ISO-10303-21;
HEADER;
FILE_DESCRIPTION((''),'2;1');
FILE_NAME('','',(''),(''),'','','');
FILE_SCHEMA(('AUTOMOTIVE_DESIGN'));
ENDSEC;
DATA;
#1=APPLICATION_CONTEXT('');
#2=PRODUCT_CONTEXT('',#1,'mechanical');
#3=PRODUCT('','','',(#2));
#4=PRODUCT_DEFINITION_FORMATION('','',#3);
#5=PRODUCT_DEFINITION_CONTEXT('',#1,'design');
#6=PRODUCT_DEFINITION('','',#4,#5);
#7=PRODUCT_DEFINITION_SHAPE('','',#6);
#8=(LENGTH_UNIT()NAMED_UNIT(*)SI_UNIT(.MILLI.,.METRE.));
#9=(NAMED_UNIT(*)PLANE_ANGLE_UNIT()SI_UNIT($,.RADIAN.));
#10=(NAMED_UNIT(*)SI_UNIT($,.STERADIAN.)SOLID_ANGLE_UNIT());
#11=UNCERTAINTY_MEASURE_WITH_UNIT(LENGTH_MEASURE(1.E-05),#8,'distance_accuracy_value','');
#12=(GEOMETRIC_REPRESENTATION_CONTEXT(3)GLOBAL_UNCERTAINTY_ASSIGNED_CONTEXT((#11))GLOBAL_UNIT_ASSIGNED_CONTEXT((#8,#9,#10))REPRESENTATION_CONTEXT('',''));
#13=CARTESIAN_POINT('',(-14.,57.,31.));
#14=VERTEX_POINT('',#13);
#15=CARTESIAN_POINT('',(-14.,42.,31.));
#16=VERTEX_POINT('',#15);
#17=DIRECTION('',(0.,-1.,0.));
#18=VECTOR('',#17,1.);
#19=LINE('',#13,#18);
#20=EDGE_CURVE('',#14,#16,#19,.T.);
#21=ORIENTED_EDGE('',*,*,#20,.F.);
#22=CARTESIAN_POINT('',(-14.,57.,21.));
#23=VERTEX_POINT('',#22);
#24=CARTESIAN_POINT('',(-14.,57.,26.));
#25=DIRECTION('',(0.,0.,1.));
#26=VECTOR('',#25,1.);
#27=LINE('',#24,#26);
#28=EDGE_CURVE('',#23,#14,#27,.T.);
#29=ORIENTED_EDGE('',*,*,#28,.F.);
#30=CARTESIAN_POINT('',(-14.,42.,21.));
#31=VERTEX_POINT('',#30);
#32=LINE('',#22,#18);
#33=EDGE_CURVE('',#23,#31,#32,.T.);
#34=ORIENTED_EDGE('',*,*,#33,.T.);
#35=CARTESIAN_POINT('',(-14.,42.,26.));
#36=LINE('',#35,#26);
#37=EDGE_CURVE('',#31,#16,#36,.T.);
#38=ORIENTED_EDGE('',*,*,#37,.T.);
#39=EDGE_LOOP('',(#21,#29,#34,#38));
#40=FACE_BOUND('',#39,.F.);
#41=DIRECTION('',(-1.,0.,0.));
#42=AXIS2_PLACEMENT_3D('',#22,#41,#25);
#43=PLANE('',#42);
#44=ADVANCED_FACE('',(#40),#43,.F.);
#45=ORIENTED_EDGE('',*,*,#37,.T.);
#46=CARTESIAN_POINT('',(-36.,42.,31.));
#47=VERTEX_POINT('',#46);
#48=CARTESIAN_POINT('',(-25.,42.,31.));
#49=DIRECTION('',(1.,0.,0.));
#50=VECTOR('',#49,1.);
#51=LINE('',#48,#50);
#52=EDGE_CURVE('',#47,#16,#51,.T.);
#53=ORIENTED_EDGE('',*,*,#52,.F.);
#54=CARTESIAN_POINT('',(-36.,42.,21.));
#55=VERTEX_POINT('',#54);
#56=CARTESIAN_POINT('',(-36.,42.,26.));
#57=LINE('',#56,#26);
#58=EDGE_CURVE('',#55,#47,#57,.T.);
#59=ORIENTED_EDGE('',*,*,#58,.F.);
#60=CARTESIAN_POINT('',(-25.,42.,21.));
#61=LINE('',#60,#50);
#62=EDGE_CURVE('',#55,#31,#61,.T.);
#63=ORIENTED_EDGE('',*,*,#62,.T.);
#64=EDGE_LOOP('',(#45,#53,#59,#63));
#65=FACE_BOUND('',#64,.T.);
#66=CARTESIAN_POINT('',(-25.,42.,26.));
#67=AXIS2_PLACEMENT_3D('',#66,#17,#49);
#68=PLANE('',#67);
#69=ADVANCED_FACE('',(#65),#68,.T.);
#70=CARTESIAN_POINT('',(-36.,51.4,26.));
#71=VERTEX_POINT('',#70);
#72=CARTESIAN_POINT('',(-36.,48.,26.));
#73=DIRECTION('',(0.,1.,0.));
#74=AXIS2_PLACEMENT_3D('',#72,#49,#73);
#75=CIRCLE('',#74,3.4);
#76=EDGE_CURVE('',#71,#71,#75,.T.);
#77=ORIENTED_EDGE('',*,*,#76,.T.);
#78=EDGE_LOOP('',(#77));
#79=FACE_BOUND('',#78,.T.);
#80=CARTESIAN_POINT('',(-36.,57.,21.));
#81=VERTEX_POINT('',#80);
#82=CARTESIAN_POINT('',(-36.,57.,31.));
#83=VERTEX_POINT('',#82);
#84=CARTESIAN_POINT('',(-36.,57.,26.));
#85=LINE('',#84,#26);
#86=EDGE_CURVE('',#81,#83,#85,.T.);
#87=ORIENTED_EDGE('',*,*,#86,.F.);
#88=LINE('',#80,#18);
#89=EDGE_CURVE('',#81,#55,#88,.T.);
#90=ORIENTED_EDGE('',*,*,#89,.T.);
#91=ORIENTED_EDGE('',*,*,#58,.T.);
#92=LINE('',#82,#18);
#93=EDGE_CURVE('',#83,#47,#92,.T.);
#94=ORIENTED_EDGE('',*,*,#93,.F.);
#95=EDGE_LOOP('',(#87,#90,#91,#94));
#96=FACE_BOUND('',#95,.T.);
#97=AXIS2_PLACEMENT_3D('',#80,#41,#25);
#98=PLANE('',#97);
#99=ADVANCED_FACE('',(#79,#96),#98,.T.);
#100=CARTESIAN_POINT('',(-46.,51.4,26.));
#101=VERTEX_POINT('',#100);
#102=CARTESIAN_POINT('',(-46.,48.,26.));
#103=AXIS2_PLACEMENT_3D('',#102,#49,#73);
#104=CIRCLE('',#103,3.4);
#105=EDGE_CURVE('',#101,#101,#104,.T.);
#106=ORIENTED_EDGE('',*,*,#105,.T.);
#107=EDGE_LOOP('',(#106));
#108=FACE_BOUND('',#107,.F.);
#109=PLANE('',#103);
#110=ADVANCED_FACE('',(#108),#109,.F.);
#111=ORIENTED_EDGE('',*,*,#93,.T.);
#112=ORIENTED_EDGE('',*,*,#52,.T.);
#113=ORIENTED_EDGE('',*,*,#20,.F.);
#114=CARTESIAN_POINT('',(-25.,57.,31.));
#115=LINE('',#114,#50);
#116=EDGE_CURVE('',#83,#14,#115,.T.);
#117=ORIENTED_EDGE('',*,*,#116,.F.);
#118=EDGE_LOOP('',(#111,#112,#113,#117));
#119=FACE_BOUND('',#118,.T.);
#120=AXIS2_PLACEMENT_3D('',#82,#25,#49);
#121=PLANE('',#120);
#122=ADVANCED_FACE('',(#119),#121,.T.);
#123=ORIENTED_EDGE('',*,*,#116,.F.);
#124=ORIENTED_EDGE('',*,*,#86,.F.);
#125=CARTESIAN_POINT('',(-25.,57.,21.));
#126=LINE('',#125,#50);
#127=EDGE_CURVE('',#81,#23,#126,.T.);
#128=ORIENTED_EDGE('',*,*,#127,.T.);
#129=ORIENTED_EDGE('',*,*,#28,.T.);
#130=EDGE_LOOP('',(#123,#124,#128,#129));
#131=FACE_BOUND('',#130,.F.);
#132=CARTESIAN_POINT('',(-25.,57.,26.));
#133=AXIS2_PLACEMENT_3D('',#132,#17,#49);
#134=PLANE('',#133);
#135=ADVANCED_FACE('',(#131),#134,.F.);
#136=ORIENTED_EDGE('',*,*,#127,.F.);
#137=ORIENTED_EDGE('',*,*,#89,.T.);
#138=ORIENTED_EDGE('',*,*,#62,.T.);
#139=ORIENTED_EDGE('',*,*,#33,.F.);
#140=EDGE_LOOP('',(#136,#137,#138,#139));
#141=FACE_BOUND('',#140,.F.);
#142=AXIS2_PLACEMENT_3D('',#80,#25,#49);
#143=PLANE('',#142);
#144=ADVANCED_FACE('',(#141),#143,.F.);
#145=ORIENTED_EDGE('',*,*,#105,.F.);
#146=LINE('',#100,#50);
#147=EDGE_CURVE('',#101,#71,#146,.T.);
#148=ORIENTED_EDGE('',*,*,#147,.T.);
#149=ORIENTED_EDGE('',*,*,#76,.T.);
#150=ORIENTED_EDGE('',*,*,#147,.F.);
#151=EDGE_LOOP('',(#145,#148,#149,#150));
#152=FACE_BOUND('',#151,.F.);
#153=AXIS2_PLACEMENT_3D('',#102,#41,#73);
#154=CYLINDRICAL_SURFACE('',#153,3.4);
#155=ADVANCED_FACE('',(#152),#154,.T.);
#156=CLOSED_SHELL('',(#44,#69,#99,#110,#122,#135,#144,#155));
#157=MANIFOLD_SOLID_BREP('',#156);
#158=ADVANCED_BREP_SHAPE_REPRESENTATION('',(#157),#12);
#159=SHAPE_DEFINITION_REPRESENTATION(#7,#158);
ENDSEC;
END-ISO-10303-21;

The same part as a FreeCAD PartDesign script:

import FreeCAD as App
import Part
import Sketcher
from FreeCAD import Vector
Q = App.Units.Quantity


def add_polygon(sketch, points):
    """Adds a closed chain of lines whose ends are joined by coincident constraints."""
    first, n = sketch.GeometryCount, len(points)
    for a, b in zip(points, points[1:] + points[:1]):
        sketch.addGeometry(Part.LineSegment(App.Vector(*a, 0), App.Vector(*b, 0)), False)
    for i in range(n):
        sketch.addConstraint(Sketcher.Constraint("Coincident", first + i, 2, first + (i + 1) % n, 1))

doc = App.newDocument("Part")
body = doc.addObject("PartDesign::Body", "Body")

# Sketch on YZ plane
sketch1 = doc.addObject("Sketcher::SketchObject", "Sketch")
body.addObject(sketch1)
sketch1.AttachmentSupport = (doc.YZ_Plane, [""])
sketch1.MapMode = "FlatFace"
sketch1.AttachmentOffset = App.Placement(Vector(0, 0, -10), App.Rotation())
sketch1.addGeometry(Part.Circle(Vector(5, 9, 0), Vector(0, 0, 1), 3.4), False)
sketch1.addConstraint([
    Sketcher.Constraint("Diameter", 0, Q("6.8 mm")),
    Sketcher.Constraint("DistanceX", -1, 1, 0, 3, Q("5 mm")),
    Sketcher.Constraint("DistanceY", -1, 1, 0, 3, Q("9 mm")),
])
pad1 = doc.addObject("PartDesign::Pad", "Pad")
body.addObject(pad1)
pad1.Profile = sketch1
pad1.Length = 10
body2 = doc.addObject("PartDesign::Body", "Body001")

# Sketch on XY plane
sketch2 = doc.addObject("Sketcher::SketchObject", "Sketch001")
body2.addObject(sketch2)
sketch2.AttachmentSupport = (doc.getObject("XY_Plane001"), [""])
sketch2.MapMode = "FlatFace"
add_polygon(sketch2, [(0, 10), (0, 0), (22, 0), (22, 10)])  # lines 0-3
sketch2.addConstraint([
    Sketcher.Constraint("Vertical", 0),
    Sketcher.Constraint("Horizontal", 1),
    Sketcher.Constraint("Vertical", 2),
    Sketcher.Constraint("Horizontal", 3),
    Sketcher.Constraint("Coincident", 0, 2, -1, 1),
    Sketcher.Constraint("DistanceX", 1, 1, 1, 2, Q("22 mm")),
    Sketcher.Constraint("DistanceY", 0, 2, 0, 1, Q("10 mm")),
])
pad2 = doc.addObject("PartDesign::Pad", "Pad001")
body2.addObject(pad2)
pad2.Profile = sketch2
pad2.Length = 15
doc.recompute()

boolean = doc.addObject("PartDesign::Boolean", "Boolean")
body2.addObject(boolean)
boolean.Type = "Fuse"
boolean.addObjects([body])
body3 = doc.addObject("PartDesign::Body", "Body002")
doc.recompute()

body2.Placement = App.Placement(Vector(-36, 57, 21), App.Rotation(Vector(1, 0, 0), 90))
boolean2 = doc.addObject("PartDesign::Boolean", "Boolean001")
body3.addObject(boolean2)
boolean2.Type = "Fuse"
boolean2.addObjects([body2])

doc.recompute()
